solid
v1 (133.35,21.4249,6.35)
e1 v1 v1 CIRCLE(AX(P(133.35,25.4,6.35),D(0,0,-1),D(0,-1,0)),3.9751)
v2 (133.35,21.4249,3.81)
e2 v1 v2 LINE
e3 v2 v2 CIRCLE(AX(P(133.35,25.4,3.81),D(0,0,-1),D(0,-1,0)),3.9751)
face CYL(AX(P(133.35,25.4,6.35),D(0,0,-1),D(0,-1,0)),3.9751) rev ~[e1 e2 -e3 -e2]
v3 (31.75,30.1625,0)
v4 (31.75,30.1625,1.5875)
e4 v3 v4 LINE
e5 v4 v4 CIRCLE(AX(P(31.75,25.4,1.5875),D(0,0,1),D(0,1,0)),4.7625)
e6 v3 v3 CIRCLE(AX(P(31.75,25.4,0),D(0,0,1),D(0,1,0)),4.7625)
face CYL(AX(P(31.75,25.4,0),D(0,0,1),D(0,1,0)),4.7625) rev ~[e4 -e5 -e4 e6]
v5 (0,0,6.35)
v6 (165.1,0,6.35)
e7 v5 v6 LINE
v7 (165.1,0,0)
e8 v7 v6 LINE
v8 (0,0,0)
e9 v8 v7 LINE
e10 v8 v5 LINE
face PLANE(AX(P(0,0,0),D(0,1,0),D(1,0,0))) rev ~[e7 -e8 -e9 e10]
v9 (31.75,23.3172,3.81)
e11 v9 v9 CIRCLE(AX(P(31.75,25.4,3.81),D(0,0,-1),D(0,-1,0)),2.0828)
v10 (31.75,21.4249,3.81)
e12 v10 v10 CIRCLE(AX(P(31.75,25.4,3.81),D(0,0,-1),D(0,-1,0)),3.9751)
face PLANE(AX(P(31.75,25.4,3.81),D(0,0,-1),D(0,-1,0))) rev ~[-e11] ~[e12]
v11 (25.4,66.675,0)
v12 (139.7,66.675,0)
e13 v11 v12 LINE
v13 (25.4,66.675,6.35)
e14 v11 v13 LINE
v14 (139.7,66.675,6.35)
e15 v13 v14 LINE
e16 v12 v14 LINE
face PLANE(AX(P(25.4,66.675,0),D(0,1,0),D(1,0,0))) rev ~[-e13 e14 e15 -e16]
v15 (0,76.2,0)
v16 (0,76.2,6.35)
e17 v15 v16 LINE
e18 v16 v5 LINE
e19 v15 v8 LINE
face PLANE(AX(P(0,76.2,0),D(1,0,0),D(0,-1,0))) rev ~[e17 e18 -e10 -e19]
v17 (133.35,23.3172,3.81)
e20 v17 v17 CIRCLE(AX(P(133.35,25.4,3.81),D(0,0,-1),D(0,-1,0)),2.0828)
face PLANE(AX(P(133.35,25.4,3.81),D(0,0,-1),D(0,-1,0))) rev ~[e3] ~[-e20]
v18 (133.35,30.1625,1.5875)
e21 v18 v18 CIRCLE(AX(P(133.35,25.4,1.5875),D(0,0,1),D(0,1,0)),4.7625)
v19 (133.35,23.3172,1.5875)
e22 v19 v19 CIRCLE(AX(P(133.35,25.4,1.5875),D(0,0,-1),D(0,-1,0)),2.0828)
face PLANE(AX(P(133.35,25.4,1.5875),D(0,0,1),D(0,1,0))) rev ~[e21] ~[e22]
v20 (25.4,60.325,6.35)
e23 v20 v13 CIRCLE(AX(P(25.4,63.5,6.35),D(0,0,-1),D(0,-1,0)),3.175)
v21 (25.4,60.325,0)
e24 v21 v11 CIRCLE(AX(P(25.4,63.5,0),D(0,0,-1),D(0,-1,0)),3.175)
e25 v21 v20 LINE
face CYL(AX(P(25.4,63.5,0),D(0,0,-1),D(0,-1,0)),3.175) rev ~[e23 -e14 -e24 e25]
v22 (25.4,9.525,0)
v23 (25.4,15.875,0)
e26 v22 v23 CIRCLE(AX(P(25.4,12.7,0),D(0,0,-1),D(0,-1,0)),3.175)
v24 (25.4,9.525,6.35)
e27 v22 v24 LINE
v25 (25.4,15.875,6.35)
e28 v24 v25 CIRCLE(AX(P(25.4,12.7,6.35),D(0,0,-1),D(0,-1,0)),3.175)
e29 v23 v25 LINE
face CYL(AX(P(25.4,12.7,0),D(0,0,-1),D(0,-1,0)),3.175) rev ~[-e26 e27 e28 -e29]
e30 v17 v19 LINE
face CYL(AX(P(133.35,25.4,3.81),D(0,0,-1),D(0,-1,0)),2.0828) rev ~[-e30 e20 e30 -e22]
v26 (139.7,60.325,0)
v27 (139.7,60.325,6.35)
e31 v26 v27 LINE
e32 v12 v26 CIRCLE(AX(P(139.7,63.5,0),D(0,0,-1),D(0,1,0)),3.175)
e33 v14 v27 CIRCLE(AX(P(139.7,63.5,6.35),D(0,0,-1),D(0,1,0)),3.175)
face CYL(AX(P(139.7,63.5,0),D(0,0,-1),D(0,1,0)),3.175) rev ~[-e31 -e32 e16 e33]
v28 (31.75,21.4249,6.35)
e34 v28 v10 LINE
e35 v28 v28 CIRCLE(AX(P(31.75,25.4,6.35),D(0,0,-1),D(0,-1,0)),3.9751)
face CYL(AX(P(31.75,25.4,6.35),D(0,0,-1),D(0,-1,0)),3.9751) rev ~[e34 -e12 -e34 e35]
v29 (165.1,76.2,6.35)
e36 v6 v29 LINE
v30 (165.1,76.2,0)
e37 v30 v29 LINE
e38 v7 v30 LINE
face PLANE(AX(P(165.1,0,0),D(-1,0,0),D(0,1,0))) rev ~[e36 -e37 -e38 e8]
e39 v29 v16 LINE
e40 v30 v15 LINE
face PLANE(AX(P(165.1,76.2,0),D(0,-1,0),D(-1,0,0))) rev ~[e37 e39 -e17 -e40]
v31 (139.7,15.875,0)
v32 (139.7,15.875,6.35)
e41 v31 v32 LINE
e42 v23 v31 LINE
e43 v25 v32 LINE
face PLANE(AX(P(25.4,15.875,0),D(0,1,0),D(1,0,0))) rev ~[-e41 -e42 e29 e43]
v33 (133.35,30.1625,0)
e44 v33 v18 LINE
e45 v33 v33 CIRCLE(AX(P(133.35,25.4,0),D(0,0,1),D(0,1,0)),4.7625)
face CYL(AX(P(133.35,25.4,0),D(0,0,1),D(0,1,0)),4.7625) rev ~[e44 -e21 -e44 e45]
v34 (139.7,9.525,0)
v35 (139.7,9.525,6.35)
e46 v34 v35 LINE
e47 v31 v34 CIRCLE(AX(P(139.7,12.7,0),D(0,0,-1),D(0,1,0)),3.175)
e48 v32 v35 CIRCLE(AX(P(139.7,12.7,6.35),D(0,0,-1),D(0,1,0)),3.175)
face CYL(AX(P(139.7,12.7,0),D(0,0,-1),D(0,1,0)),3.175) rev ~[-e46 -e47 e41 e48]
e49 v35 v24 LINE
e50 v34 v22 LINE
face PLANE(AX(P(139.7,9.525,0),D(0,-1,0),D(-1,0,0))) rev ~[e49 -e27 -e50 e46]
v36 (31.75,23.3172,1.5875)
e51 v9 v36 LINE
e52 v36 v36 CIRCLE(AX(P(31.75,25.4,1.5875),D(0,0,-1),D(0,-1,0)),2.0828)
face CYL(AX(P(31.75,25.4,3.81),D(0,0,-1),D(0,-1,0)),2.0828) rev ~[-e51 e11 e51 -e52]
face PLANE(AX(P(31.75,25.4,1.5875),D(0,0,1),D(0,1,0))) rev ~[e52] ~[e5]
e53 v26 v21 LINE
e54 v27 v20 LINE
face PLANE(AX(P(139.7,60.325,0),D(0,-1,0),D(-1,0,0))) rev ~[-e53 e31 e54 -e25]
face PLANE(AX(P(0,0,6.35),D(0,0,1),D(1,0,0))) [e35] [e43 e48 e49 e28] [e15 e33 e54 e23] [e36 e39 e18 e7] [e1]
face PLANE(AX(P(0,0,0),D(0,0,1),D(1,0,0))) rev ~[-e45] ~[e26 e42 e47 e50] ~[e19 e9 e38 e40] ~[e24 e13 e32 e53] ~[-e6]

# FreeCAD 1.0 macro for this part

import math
import FreeCAD as App
import Part
import Sketcher
Q = App.Units.Quantity


def add_polygon(sketch, points):
    """Adds a closed chain of lines whose ends are joined by coincident constraints."""
    first, n = sketch.GeometryCount, len(points)
    for a, b in zip(points, points[1:] + points[:1]):
        sketch.addGeometry(Part.LineSegment(App.Vector(*a, 0), App.Vector(*b, 0)), False)
    for i in range(n):
        sketch.addConstraint(Sketcher.Constraint("Coincident", first + i, 2, first + (i + 1) % n, 1))

doc = App.newDocument("Part")
params = doc.addObject("Spreadsheet::Sheet", "Params")
for row, (alias, value) in enumerate([
    ("sketch1_height", "3 in"),
    ("sketch1_width", "6.5 in"),
    ("pad1_length", "0.25 in"),
    ("sketch2_diameter", "0.164 in"),
    ("hole_diameter", "0.164 in"),
    ("hole_depth", "0.25 in"),
    ("hole_cbore_diameter", "0.313 in"),
    ("hole_cbore_depth", "0.1 in"),
    ("sketch3_width", "4.5 in"),
    ("sketch3_radius", "0.125 in"),
    ("pocket1_length", "0.25 in"),
    ("sketch4_diameter", "0.375 in"),
    ("hole2_diameter", "0.375 in"),
    ("hole2_depth", "0.0625 in"),
    ("sketch5_diameter", "0.375 in"),
    ("hole3_diameter", "0.375 in"),
    ("hole3_depth", "0.0625 in"),
], start=1):
    params.set(f"A{row}", alias)
    params.set(f"B{row}", "=" + value)
    params.setAlias(f"B{row}", alias)

body = doc.addObject("PartDesign::Body", "Body")

sketch1 = doc.addObject("Sketcher::SketchObject", "Sketch")
body.addObject(sketch1)
sketch1.AttachmentSupport = (doc.XY_Plane, [""])
sketch1.MapMode = "FlatFace"
add_polygon(sketch1, [(0, 76), (0, 0), (165, 0), (165, 76)])
sketch1.addConstraint(Sketcher.Constraint("Vertical", 0))
sketch1.addConstraint(Sketcher.Constraint("Horizontal", 1))
sketch1.addConstraint(Sketcher.Constraint("Vertical", 2))
sketch1.addConstraint(Sketcher.Constraint("Horizontal", 3))
sketch1.addConstraint(Sketcher.Constraint("Coincident", 0, 2, -1, 1))
sketch1.addConstraint(Sketcher.Constraint("DistanceY", 0, 2, 0, 1, Q("3 in")))
sketch1.addConstraint(Sketcher.Constraint("DistanceX", 1, 1, 1, 2, Q("6.5 in")))
sketch1.setExpression("Constraints[9]", "Params.sketch1_height")
sketch1.setExpression("Constraints[10]", "Params.sketch1_width")
pad1 = doc.addObject("PartDesign::Pad", "Pad")
body.addObject(pad1)
pad1.Profile = sketch1
pad1.setExpression("Length", "Params.pad1_length")

sketch2 = doc.addObject("Sketcher::SketchObject", "Sketch001")
body.addObject(sketch2)
sketch2.AttachmentSupport = (doc.XY_Plane, [""])
sketch2.MapMode = "FlatFace"
sketch2.AttachmentOffset = App.Placement(App.Vector(0, 0, 0.25 * 25.4), App.Rotation())
sketch2.addGeometry(Part.Circle(App.Vector(31.8, 25.4, 0), App.Vector(0, 0, 1), 2.1), False)
sketch2.addGeometry(Part.Circle(App.Vector(133.3, 25.4, 0), App.Vector(0, 0, 1), 2.1), False)
sketch2.addConstraint(Sketcher.Constraint("Equal", 0, 1))
sketch2.addConstraint(Sketcher.Constraint("Horizontal", 0, 3, 1, 3))
sketch2.addConstraint(Sketcher.Constraint("Diameter", 0, Q("0.164 in")))
sketch2.addConstraint(Sketcher.Constraint("DistanceY", -1, 1, 0, 3, Q("1 in")))
sketch2.addConstraint(Sketcher.Constraint("DistanceX", 0, 3, 1, 3, Q("4 in")))
sketch2.addConstraint(Sketcher.Constraint("DistanceX", -1, 1, 0, 3, Q("1.25 in")))
sketch2.setExpression("Constraints[2]", "Params.sketch2_diameter")
doc.recompute()
hole = doc.addObject("PartDesign::Hole", "Hole")
body.addObject(hole)
hole.Profile = sketch2
hole.ThreadType = "None"
hole.setExpression("Diameter", "Params.hole_diameter")
hole.DepthType = "Dimension"
hole.setExpression("Depth", "Params.hole_depth")
hole.DrillPoint = "Angled"
hole.DrillPointAngle = 118
hole.HoleCutType = "Counterbore"
hole.setExpression("HoleCutDiameter", "Params.hole_cbore_diameter")
hole.setExpression("HoleCutDepth", "Params.hole_cbore_depth")

sketch3 = doc.addObject("Sketcher::SketchObject", "Sketch002")
body.addObject(sketch3)
sketch3.AttachmentSupport = (doc.XY_Plane, [""])
sketch3.MapMode = "FlatFace"
sketch3.addGeometry(Part.ArcOfCircle(Part.Circle(App.Vector(139.7, 12.7, 0), App.Vector(0, 0, 1), 3.2), math.radians(-90), math.radians(90)), False)
sketch3.addGeometry(Part.LineSegment(App.Vector(139.7, 9.5, 0), App.Vector(25.4, 9.5, 0)), False)
sketch3.addGeometry(Part.ArcOfCircle(Part.Circle(App.Vector(25.4, 12.7, 0), App.Vector(0, 0, 1), 3.2), math.radians(90), math.radians(270)), False)
sketch3.addGeometry(Part.LineSegment(App.Vector(25.4, 15.9, 0), App.Vector(139.7, 15.9, 0)), False)
sketch3.addGeometry(Part.ArcOfCircle(Part.Circle(App.Vector(139.7, 63.5, 0), App.Vector(0, 0, 1), 3.2), math.radians(-90), math.radians(90)), False)
sketch3.addGeometry(Part.LineSegment(App.Vector(139.7, 60.3, 0), App.Vector(25.4, 60.3, 0)), False)
sketch3.addGeometry(Part.ArcOfCircle(Part.Circle(App.Vector(25.4, 63.5, 0), App.Vector(0, 0, 1), 3.2), math.radians(90), math.radians(270)), False)
sketch3.addGeometry(Part.LineSegment(App.Vector(25.4, 66.7, 0), App.Vector(139.7, 66.7, 0)), False)
sketch3.addConstraint(Sketcher.Constraint("Tangent", 0, 1, 1, 1))
sketch3.addConstraint(Sketcher.Constraint("Tangent", 1, 2, 2, 2))
sketch3.addConstraint(Sketcher.Constraint("Tangent", 2, 1, 3, 1))
sketch3.addConstraint(Sketcher.Constraint("Tangent", 3, 2, 0, 2))
sketch3.addConstraint(Sketcher.Constraint("Tangent", 4, 1, 5, 1))
sketch3.addConstraint(Sketcher.Constraint("Tangent", 5, 2, 6, 2))
sketch3.addConstraint(Sketcher.Constraint("Tangent", 6, 1, 7, 1))
sketch3.addConstraint(Sketcher.Constraint("Tangent", 7, 2, 4, 2))
sketch3.addConstraint(Sketcher.Constraint("Horizontal", 1))
sketch3.addConstraint(Sketcher.Constraint("Horizontal", 3))
sketch3.addConstraint(Sketcher.Constraint("Horizontal", 5))
sketch3.addConstraint(Sketcher.Constraint("Horizontal", 7))
sketch3.addConstraint(Sketcher.Constraint("Equal", 2, 4))
sketch3.addConstraint(Sketcher.Constraint("Vertical", 0, 3, 4, 3))
sketch3.addConstraint(Sketcher.Constraint("Vertical", 2, 3, 6, 3))
sketch3.addConstraint(Sketcher.Constraint("DistanceX", 1, 2, 1, 1, Q("4.5 in")))
sketch3.addConstraint(Sketcher.Constraint("DistanceX", -1, 1, 2, 3, Q("1 in")))
sketch3.addConstraint(Sketcher.Constraint("Radius", 0, Q("0.125 in")))
sketch3.addConstraint(Sketcher.Constraint("DistanceY", 0, 3, 4, 3, Q("2 in")))
sketch3.addConstraint(Sketcher.Constraint("DistanceY", -1, 1, 0, 3, Q("0.5 in")))
sketch3.setExpression("Constraints[15]", "Params.sketch3_width")
sketch3.setExpression("Constraints[17]", "Params.sketch3_radius")
pocket1 = doc.addObject("PartDesign::Pocket", "Pocket")
body.addObject(pocket1)
pocket1.Profile = sketch3
pocket1.setExpression("Length", "Params.pocket1_length")
pocket1.Reversed = True

sketch4 = doc.addObject("Sketcher::SketchObject", "Sketch003")
body.addObject(sketch4)
sketch4.AttachmentSupport = (doc.XY_Plane, [""])
sketch4.MapMode = "FlatFace"
sketch4.addGeometry(Part.Circle(App.Vector(31.8, 25.4, 0), App.Vector(0, 0, 1), 4.8), False)
sketch4.addConstraint(Sketcher.Constraint("Diameter", 0, Q("0.375 in")))
sketch4.addConstraint(Sketcher.Constraint("DistanceY", -1, 1, 0, 3, Q("1 in")))
sketch4.addConstraint(Sketcher.Constraint("DistanceX", -1, 1, 0, 3, Q("1.25 in")))
sketch4.setExpression("Constraints[0]", "Params.sketch4_diameter")
doc.recompute()
hole2 = doc.addObject("PartDesign::Hole", "Hole001")
body.addObject(hole2)
hole2.Profile = sketch4
hole2.ThreadType = "None"
hole2.setExpression("Diameter", "Params.hole2_diameter")
hole2.DepthType = "Dimension"
hole2.setExpression("Depth", "Params.hole2_depth")
hole2.DrillPoint = "Flat"
hole2.Reversed = True

sketch5 = doc.addObject("Sketcher::SketchObject", "Sketch004")
body.addObject(sketch5)
sketch5.AttachmentSupport = (doc.XY_Plane, [""])
sketch5.MapMode = "FlatFace"
sketch5.addGeometry(Part.Circle(App.Vector(133.3, 25.4, 0), App.Vector(0, 0, 1), 4.8), False)
sketch5.addConstraint(Sketcher.Constraint("Diameter", 0, Q("0.375 in")))
sketch5.addConstraint(Sketcher.Constraint("DistanceY", -1, 1, 0, 3, Q("1 in")))
sketch5.addConstraint(Sketcher.Constraint("DistanceX", -1, 1, 0, 3, Q("5.25 in")))
sketch5.setExpression("Constraints[0]", "Params.sketch5_diameter")
doc.recompute()
hole3 = doc.addObject("PartDesign::Hole", "Hole002")
body.addObject(hole3)
hole3.Profile = sketch5
hole3.ThreadType = "None"
hole3.setExpression("Diameter", "Params.hole3_diameter")
hole3.DepthType = "Dimension"
hole3.setExpression("Depth", "Params.hole3_depth")
hole3.DrillPoint = "Flat"
hole3.Reversed = True

doc.recompute()
